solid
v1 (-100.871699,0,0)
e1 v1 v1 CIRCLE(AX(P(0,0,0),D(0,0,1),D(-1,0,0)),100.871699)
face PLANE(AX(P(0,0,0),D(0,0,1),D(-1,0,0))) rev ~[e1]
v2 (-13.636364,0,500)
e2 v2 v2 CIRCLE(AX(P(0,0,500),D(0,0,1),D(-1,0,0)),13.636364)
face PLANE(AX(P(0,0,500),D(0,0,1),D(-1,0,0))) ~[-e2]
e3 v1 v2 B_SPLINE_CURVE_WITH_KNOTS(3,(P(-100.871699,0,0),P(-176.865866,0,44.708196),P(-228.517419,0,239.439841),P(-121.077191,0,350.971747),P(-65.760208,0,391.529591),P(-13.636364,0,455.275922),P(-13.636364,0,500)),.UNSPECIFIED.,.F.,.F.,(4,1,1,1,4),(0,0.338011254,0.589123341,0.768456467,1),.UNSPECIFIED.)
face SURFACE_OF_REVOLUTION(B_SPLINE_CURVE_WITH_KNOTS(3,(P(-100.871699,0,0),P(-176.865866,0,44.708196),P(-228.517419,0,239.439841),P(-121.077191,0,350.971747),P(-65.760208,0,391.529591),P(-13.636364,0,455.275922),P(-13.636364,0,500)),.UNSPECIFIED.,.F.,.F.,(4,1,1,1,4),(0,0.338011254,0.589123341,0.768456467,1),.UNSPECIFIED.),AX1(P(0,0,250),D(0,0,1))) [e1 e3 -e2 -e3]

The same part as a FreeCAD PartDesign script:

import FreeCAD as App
import Part
import Sketcher

V = App.Vector

doc = App.newDocument("Part")
body = doc.addObject("PartDesign::Body", "Body")

# Sketch on XZ plane
sketch1 = body.newObject("Sketcher::SketchObject", "Sketch")
sketch1.AttachmentSupport = (doc.getObject("XZ_Plane"), [""])
sketch1.MapMode = "FlatFace"
sketch1.addGeometry(Part.LineSegment(V(-100.871699, 0, 0), V(0, 0, 0)), False)
sketch1.addGeometry(Part.LineSegment(V(0, 0, 0), V(0, 500, 0)), False)
sketch1.addGeometry(Part.LineSegment(V(0, 500, 0), V(-13.636364, 500, 0)), False)
sketch1.addGeometry(Part.BSplineCurve([V(-100.871699, 0, 0), V(-176.865866, 44.708196, 0), V(-228.517419, 239.439841, 0), V(-121.077191, 350.971747, 0), V(-65.760208, 391.529591, 0), V(-13.636364, 455.275922, 0), V(-13.636364, 500, 0)], [4, 1, 1, 1, 4], [0, 0.338011254, 0.589123341, 0.768456467, 1], False, 3, [1, 1, 1, 1, 1, 1, 1], False), False)
sketch1.addConstraint(Sketcher.Constraint("Block", 3))
sketch1.addConstraint(Sketcher.Constraint("Coincident", 0, 2, 1, 1))
sketch1.addConstraint(Sketcher.Constraint("Coincident", 1, 2, 2, 1))
sketch1.addConstraint(Sketcher.Constraint("Coincident", 2, 2, 3, 2))
sketch1.addConstraint(Sketcher.Constraint("Coincident", 3, 1, 0, 1))
sketch1.addConstraint(Sketcher.Constraint("Horizontal", 0))
sketch1.addConstraint(Sketcher.Constraint("Vertical", 1))
sketch1.addConstraint(Sketcher.Constraint("Horizontal", 2))
sketch1.addConstraint(Sketcher.Constraint("PointOnObject", 1, 2, -2))
revolution = body.newObject("PartDesign::Revolution", "Revolution")
revolution.Profile = sketch1
revolution.ReferenceAxis = (sketch1, ["V_Axis"])
revolution.Angle = 360

doc.recompute()
